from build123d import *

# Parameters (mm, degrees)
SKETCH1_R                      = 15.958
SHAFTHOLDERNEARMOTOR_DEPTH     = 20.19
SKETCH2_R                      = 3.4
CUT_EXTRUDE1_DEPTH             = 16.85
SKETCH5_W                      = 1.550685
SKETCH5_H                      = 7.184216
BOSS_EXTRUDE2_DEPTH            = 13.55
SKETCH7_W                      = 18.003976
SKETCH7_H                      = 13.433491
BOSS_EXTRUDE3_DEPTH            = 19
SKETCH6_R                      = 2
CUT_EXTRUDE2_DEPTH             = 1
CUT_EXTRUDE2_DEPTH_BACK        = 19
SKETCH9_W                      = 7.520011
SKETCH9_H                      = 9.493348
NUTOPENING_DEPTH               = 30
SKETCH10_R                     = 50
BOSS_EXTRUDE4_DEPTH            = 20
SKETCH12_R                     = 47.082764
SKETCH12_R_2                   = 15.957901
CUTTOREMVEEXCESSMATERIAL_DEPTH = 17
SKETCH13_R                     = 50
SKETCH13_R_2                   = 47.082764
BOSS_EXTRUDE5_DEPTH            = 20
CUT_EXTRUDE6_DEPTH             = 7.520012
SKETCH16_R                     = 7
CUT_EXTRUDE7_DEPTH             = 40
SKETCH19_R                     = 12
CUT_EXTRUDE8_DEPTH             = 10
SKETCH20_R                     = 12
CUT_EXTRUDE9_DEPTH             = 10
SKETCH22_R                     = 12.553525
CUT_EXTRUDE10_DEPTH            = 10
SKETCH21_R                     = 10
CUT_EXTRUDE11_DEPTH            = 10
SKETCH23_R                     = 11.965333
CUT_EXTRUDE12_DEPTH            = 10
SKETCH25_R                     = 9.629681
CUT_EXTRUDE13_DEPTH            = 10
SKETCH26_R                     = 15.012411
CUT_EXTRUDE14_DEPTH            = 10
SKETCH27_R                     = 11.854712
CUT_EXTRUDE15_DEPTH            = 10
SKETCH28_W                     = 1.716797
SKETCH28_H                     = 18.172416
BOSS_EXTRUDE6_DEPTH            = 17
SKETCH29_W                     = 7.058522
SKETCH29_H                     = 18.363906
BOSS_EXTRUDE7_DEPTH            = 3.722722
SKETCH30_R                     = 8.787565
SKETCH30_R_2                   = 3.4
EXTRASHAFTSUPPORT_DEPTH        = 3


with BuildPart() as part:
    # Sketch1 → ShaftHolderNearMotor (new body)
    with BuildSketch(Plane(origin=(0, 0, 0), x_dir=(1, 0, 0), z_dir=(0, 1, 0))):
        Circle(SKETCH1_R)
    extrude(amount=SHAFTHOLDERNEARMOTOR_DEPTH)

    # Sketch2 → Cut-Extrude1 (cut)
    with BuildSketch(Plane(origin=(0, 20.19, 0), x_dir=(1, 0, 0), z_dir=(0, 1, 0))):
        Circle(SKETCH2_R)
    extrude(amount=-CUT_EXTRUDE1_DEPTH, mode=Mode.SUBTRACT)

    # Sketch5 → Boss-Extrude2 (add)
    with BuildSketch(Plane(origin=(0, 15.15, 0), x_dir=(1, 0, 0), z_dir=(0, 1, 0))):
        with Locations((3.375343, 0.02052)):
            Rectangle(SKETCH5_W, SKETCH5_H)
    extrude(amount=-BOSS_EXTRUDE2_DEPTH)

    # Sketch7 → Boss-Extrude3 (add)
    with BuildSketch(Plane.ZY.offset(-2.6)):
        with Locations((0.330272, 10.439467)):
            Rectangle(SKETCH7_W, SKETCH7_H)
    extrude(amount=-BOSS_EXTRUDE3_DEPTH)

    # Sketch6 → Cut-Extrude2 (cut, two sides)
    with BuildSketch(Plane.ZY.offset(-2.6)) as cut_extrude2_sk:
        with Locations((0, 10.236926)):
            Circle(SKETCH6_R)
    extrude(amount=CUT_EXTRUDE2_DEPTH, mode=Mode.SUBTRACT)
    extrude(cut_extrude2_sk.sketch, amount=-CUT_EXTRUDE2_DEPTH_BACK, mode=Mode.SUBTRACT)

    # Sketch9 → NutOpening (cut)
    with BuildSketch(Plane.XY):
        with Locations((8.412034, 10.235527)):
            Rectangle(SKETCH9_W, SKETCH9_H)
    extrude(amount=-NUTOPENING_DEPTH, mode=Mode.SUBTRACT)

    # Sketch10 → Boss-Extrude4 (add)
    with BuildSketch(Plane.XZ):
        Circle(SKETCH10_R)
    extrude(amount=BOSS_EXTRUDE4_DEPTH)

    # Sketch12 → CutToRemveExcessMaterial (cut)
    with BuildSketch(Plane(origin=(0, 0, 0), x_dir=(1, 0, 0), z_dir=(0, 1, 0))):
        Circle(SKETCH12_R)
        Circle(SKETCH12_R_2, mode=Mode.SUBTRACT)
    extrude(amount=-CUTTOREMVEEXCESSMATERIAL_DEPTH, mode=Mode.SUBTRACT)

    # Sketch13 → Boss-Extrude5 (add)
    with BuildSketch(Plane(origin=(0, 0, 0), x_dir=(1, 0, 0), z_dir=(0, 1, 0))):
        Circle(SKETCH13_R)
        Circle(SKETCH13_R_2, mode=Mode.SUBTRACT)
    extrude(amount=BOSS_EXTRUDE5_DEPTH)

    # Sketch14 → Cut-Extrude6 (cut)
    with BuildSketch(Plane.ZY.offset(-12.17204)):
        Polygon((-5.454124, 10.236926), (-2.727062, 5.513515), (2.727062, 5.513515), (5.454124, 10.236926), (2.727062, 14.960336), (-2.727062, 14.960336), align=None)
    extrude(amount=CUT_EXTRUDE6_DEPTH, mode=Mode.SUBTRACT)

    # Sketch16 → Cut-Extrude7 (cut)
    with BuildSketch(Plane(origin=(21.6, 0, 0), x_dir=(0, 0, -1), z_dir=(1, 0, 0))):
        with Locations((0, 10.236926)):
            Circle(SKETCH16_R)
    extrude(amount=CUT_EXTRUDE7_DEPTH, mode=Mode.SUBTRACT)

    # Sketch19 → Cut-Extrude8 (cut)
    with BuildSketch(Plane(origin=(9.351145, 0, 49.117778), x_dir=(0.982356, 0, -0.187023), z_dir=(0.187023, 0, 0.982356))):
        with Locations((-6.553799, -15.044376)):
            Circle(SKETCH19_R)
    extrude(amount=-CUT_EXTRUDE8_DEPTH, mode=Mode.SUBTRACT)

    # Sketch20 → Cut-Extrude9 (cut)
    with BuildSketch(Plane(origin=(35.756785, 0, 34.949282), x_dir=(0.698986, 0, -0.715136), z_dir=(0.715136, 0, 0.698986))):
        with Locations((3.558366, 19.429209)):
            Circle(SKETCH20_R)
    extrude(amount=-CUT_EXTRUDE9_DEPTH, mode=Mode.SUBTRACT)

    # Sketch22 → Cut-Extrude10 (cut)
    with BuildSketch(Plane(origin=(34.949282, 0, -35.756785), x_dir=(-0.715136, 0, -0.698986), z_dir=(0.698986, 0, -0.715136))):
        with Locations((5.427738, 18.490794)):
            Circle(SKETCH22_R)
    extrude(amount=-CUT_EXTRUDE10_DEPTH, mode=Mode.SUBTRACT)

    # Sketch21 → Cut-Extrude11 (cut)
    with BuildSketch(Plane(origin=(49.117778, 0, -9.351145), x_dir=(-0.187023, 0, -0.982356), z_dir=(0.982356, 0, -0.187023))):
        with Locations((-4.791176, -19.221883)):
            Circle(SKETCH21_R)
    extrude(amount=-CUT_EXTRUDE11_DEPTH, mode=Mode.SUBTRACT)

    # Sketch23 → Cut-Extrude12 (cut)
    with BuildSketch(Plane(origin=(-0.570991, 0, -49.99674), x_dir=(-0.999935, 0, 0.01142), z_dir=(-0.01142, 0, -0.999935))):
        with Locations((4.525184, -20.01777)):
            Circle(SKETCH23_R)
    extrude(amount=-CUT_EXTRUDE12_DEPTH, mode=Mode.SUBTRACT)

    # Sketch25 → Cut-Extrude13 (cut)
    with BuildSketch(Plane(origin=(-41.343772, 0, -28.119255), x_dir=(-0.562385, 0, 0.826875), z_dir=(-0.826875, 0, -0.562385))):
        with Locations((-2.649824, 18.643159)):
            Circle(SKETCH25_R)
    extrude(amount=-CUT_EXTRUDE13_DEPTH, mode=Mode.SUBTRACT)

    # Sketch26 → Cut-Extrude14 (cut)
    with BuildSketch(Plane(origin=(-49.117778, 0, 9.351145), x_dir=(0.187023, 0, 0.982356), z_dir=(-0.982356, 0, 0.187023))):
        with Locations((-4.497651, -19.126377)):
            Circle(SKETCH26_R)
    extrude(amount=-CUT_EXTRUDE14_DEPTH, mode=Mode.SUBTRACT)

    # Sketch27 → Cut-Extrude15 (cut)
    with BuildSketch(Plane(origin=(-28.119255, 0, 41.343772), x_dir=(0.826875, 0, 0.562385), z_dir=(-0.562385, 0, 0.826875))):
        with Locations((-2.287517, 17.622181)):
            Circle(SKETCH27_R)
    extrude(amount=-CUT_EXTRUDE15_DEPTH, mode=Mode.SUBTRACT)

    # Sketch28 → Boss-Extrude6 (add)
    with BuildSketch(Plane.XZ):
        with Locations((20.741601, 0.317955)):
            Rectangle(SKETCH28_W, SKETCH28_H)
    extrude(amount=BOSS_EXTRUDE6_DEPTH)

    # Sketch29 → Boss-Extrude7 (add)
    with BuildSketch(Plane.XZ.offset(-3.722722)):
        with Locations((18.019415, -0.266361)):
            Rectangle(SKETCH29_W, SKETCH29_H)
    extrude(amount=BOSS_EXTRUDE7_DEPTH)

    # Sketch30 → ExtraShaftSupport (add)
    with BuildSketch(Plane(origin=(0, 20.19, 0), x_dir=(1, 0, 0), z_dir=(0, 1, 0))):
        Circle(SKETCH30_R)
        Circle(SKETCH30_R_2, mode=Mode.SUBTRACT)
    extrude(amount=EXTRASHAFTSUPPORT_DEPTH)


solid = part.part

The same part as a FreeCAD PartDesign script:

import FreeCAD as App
import Part
import Sketcher
from FreeCAD import Vector
Q = App.Units.Quantity

doc = App.newDocument("Part")
body = doc.addObject("PartDesign::Body", "Body")

sketch1 = body.newObject("Sketcher::SketchObject", "Sketch")
sketch1.AttachmentSupport = (doc.getObject("XZ_Plane"), [""])
sketch1.MapMode = "FlatFace"
sketch1.addGeometry(Part.Circle(Vector(0, 0, 0), Vector(0, 0, 1), 15.958), False)
sketch1.addConstraint([
    Sketcher.Constraint("Coincident", 0, 3, -1, 1),
    Sketcher.Constraint("Diameter", 0, Q("31.916 mm")),
])
pad1 = body.newObject("PartDesign::Pad", "Pad")
pad1.Profile = sketch1
pad1.Length = 20.19
pad1.Reversed = True

sketch2 = body.newObject("Sketcher::SketchObject", "Sketch001")
sketch2.AttachmentSupport = (doc.getObject("XZ_Plane"), [""])
sketch2.MapMode = "FlatFace"
sketch2.AttachmentOffset = App.Placement(Vector(0, 0, -20.19), App.Rotation())
sketch2.addGeometry(Part.Circle(Vector(0, 0, 0), Vector(0, 0, 1), 3.4), False)
sketch2.addConstraint([
    Sketcher.Constraint("Coincident", 0, 3, -1, 1),
    Sketcher.Constraint("Diameter", 0, Q("6.8 mm")),
])
pocket1 = body.newObject("PartDesign::Pocket", "Pocket")
pocket1.Profile = sketch2
pocket1.Length = 16.85
pocket1.Reversed = True

sketch3 = body.newObject("Sketcher::SketchObject", "Sketch002")
sketch3.AttachmentSupport = (doc.getObject("XZ_Plane"), [""])
sketch3.MapMode = "FlatFace"
sketch3.AttachmentOffset = App.Placement(Vector(0, 0, -15.15), App.Rotation())
sketch3.addGeometry([
    Part.LineSegment(Vector(2.600001, -3.612628, 0), Vector(2.600001, 3.571588, 0)),
    Part.LineSegment(Vector(2.600001, 3.571588, 0), Vector(4.150685, 3.571588, 0)),
    Part.LineSegment(Vector(4.150685, 3.571588, 0), Vector(4.150685, -3.612628, 0)),
    Part.LineSegment(Vector(4.150685, -3.612628, 0), Vector(2.600001, -3.612628, 0)),
], False)
sketch3.addConstraint([
    Sketcher.Constraint("Coincident", 0, 2, 1, 1),
    Sketcher.Constraint("Coincident", 1, 2, 2, 1),
    Sketcher.Constraint("Coincident", 2, 2, 3, 1),
    Sketcher.Constraint("Coincident", 3, 2, 0, 1),
    Sketcher.Constraint("Vertical", 0),
    Sketcher.Constraint("Horizontal", 1),
    Sketcher.Constraint("Vertical", 2),
    Sketcher.Constraint("Horizontal", 3),
    Sketcher.Constraint("DistanceX", -1, 1, 0, 2, Q("2.600001 mm")),
    Sketcher.Constraint("DistanceX", 1, 1, 1, 2, Q("1.550685 mm")),
    Sketcher.Constraint("DistanceY", 0, 1, 0, 2, Q("7.184216 mm")),
    Sketcher.Constraint("DistanceY", -1, 1, 0, 2, Q("3.571588 mm")),
])
pad2 = body.newObject("PartDesign::Pad", "Pad001")
pad2.Profile = sketch3
pad2.Length = 13.55

sketch4 = body.newObject("Sketcher::SketchObject", "Sketch003")
sketch4.AttachmentSupport = (doc.getObject("YZ_Plane"), [""])
sketch4.MapMode = "FlatFace"
sketch4.AttachmentOffset = App.Placement(Vector(0, 0, 2.6), App.Rotation())
sketch4.addGeometry([
    Part.LineSegment(Vector(17.156212, -8.671716, 0), Vector(3.722722, -8.671716, 0)),
    Part.LineSegment(Vector(3.722722, -8.671716, 0), Vector(3.722722, 9.33226, 0)),
    Part.LineSegment(Vector(3.722722, 9.33226, 0), Vector(17.156212, 9.33226, 0)),
    Part.LineSegment(Vector(17.156212, 9.33226, 0), Vector(17.156212, -8.671716, 0)),
], False)
sketch4.addConstraint([
    Sketcher.Constraint("Coincident", 0, 2, 1, 1),
    Sketcher.Constraint("Coincident", 1, 2, 2, 1),
    Sketcher.Constraint("Coincident", 2, 2, 3, 1),
    Sketcher.Constraint("Coincident", 3, 2, 0, 1),
    Sketcher.Constraint("Horizontal", 0),
    Sketcher.Constraint("Vertical", 1),
    Sketcher.Constraint("Horizontal", 2),
    Sketcher.Constraint("Vertical", 3),
    Sketcher.Constraint("DistanceX", 0, 2, 0, 1, Q("13.433491 mm")),
    Sketcher.Constraint("DistanceY", 1, 1, 1, 2, Q("18.003976 mm")),
    Sketcher.Constraint("DistanceX", -1, 1, 0, 2, Q("3.722722 mm")),
    Sketcher.Constraint("DistanceY", -1, 1, 1, 2, Q("9.33226 mm")),
])
pad3 = body.newObject("PartDesign::Pad", "Pad002")
pad3.Profile = sketch4
pad3.Length = 19

sketch5 = body.newObject("Sketcher::SketchObject", "Sketch004")
sketch5.AttachmentSupport = (doc.getObject("YZ_Plane"), [""])
sketch5.MapMode = "FlatFace"
sketch5.AttachmentOffset = App.Placement(Vector(0, 0, 2.6), App.Rotation())
sketch5.addGeometry(Part.Circle(Vector(10.236926, 0, 0), Vector(0, 0, 1), 2), False)
sketch5.addConstraint([
    Sketcher.Constraint("PointOnObject", 0, 3, -1),
    Sketcher.Constraint("Diameter", 0, Q("4 mm")),
    Sketcher.Constraint("DistanceX", -1, 1, 0, 3, Q("10.236926 mm")),
])
pocket2 = body.newObject("PartDesign::Pocket", "Pocket001")
pocket2.Profile = sketch5
pocket2.Type = "TwoLengths"
pocket2.Length = 1
pocket2.Length2 = 19

sketch6 = body.newObject("Sketcher::SketchObject", "Sketch005")
sketch6.AttachmentSupport = (doc.getObject("XY_Plane"), [""])
sketch6.MapMode = "FlatFace"
sketch6.addGeometry([
    Part.LineSegment(Vector(4.652029, 14.982201, 0), Vector(4.652029, 5.488853, 0)),
    Part.LineSegment(Vector(4.652029, 5.488853, 0), Vector(12.17204, 5.488853, 0)),
    Part.LineSegment(Vector(12.17204, 5.488853, 0), Vector(12.17204, 14.982201, 0)),
    Part.LineSegment(Vector(12.17204, 14.982201, 0), Vector(4.652029, 14.982201, 0)),
], False)
sketch6.addConstraint([
    Sketcher.Constraint("Coincident", 0, 2, 1, 1),
    Sketcher.Constraint("Coincident", 1, 2, 2, 1),
    Sketcher.Constraint("Coincident", 2, 2, 3, 1),
    Sketcher.Constraint("Coincident", 3, 2, 0, 1),
    Sketcher.Constraint("Vertical", 0),
    Sketcher.Constraint("Horizontal", 1),
    Sketcher.Constraint("Vertical", 2),
    Sketcher.Constraint("Horizontal", 3),
    Sketcher.Constraint("DistanceX", 1, 1, 1, 2, Q("7.520011 mm")),
    Sketcher.Constraint("DistanceY", 0, 2, 0, 1, Q("9.493348 mm")),
    Sketcher.Constraint("DistanceY", -1, 1, 2, 2, Q("14.982201 mm")),
    Sketcher.Constraint("DistanceX", -1, 1, 0, 2, Q("4.652029 mm")),
])
pocket3 = body.newObject("PartDesign::Pocket", "Pocket002")
pocket3.Profile = sketch6
pocket3.Length = 30

sketch7 = body.newObject("Sketcher::SketchObject", "Sketch006")
sketch7.AttachmentSupport = (doc.getObject("XZ_Plane"), [""])
sketch7.MapMode = "FlatFace"
sketch7.addGeometry(Part.Circle(Vector(0, 0, 0), Vector(0, 0, 1), 50), False)
sketch7.addConstraint([
    Sketcher.Constraint("Coincident", 0, 3, -1, 1),
    Sketcher.Constraint("Diameter", 0, Q("100 mm")),
])
pad4 = body.newObject("PartDesign::Pad", "Pad003")
pad4.Profile = sketch7
pad4.Length = 20

sketch8 = body.newObject("Sketcher::SketchObject", "Sketch007")
sketch8.AttachmentSupport = (doc.getObject("XZ_Plane"), [""])
sketch8.MapMode = "FlatFace"
sketch8.addGeometry([
    Part.Circle(Vector(0, 0, 0), Vector(0, 0, 1), 47.082764),
    Part.Circle(Vector(0, 0, 0), Vector(0, 0, 1), 15.957901),
], False)
sketch8.addConstraint([
    Sketcher.Constraint("Coincident", 0, 3, -1, 1),
    Sketcher.Constraint("Coincident", 1, 3, -1, 1),
    Sketcher.Constraint("Diameter", 1, Q("31.915802 mm")),
    Sketcher.Constraint("Diameter", 0, Q("94.165528 mm")),
])
pocket4 = body.newObject("PartDesign::Pocket", "Pocket003")
pocket4.Profile = sketch8
pocket4.Length = 17
pocket4.Reversed = True

sketch9 = body.newObject("Sketcher::SketchObject", "Sketch008")
sketch9.AttachmentSupport = (doc.getObject("XZ_Plane"), [""])
sketch9.MapMode = "FlatFace"
sketch9.addGeometry([
    Part.Circle(Vector(0, 0, 0), Vector(0, 0, 1), 50),
    Part.Circle(Vector(0, 0, 0), Vector(0, 0, 1), 47.082764),
], False)
sketch9.addConstraint([
    Sketcher.Constraint("Coincident", 0, 3, -1, 1),
    Sketcher.Constraint("Coincident", 1, 3, -1, 1),
    Sketcher.Constraint("Diameter", 0, Q("100 mm")),
    Sketcher.Constraint("Diameter", 1, Q("94.165528 mm")),
])
pad5 = body.newObject("PartDesign::Pad", "Pad004")
pad5.Profile = sketch9
pad5.Length = 20
pad5.Reversed = True

sketch10 = body.newObject("Sketcher::SketchObject", "Sketch009")
sketch10.AttachmentSupport = (doc.getObject("YZ_Plane"), [""])
sketch10.MapMode = "FlatFace"
sketch10.AttachmentOffset = App.Placement(Vector(0, 0, 12.17204), App.Rotation())
sketch10.addGeometry([
    Part.LineSegment(Vector(10.236926, -5.454124, 0), Vector(5.513515, -2.727062, 0)),
    Part.LineSegment(Vector(5.513515, -2.727062, 0), Vector(5.513515, 2.727062, 0)),
    Part.LineSegment(Vector(5.513515, 2.727062, 0), Vector(10.236926, 5.454124, 0)),
    Part.LineSegment(Vector(10.236926, 5.454124, 0), Vector(14.960336, 2.727062, 0)),
    Part.LineSegment(Vector(14.960336, 2.727062, 0), Vector(14.960336, -2.727062, 0)),
    Part.LineSegment(Vector(14.960336, -2.727062, 0), Vector(10.236926, -5.454124, 0)),
], False)
sketch10.addConstraint([
    Sketcher.Constraint("Coincident", 0, 2, 1, 1),
    Sketcher.Constraint("Coincident", 1, 2, 2, 1),
    Sketcher.Constraint("Coincident", 2, 2, 3, 1),
    Sketcher.Constraint("Coincident", 3, 2, 4, 1),
    Sketcher.Constraint("Coincident", 4, 2, 5, 1),
    Sketcher.Constraint("Coincident", 5, 2, 0, 1),
    Sketcher.Constraint("Vertical", 1),
    Sketcher.Constraint("Vertical", 4),
    Sketcher.Constraint("Symmetric", 2, 2, 5, 2, -1),
    Sketcher.Constraint("Parallel", 0, 3),
    Sketcher.Constraint("Parallel", 2, 5),
    Sketcher.Constraint("Horizontal", 1, 2, 3, 2),
    Sketcher.Constraint("Horizontal", 0, 2, 4, 2),
    Sketcher.Constraint("Angle", 0, Q("150.000006 deg")),
    Sketcher.Constraint("DistanceY", 1, 1, 1, 2, Q("5.454124 mm")),
    Sketcher.Constraint("DistanceX", 1, 2, 2, 2, Q("4.723411 mm")),
    Sketcher.Constraint("DistanceX", -1, 1, 0, 2, Q("5.513515 mm")),
])
pocket5 = body.newObject("PartDesign::Pocket", "Pocket004")
pocket5.Profile = sketch10
pocket5.Length = 7.520012

sketch11 = body.newObject("Sketcher::SketchObject", "Sketch010")
sketch11.AttachmentSupport = (doc.getObject("YZ_Plane"), [""])
sketch11.MapMode = "FlatFace"
sketch11.AttachmentOffset = App.Placement(Vector(0, 0, 21.6), App.Rotation())
sketch11.addGeometry(Part.Circle(Vector(10.236926, 0, 0), Vector(0, 0, 1), 7), False)
sketch11.addConstraint([
    Sketcher.Constraint("PointOnObject", 0, 3, -1),
    Sketcher.Constraint("Diameter", 0, Q("14 mm")),
    Sketcher.Constraint("DistanceX", -1, 1, 0, 3, Q("10.236926 mm")),
])
pocket6 = body.newObject("PartDesign::Pocket", "Pocket005")
pocket6.Profile = sketch11
pocket6.Length = 40
pocket6.Reversed = True

sketch12 = body.newObject("Sketcher::SketchObject", "Sketch011")
sketch12.Placement = App.Placement(Vector(9.351145, 0, 49.117778), App.Rotation(Vector(0.982355551, 0, -0.187022915), Vector(0, 0.999999999, 0), Vector(0.187022915, 0, 0.982355551), "ZXY"))
sketch12.addGeometry(Part.Circle(Vector(-6.553799, -15.044376, 0), Vector(0, 0, 1), 12), False)
sketch12.addConstraint([
    Sketcher.Constraint("Diameter", 0, Q("24 mm")),
    Sketcher.Constraint("DistanceX", 0, 3, -1, 1, Q("6.553799 mm")),
    Sketcher.Constraint("DistanceY", 0, 3, -1, 1, Q("15.044376 mm")),
])
pocket7 = body.newObject("PartDesign::Pocket", "Pocket006")
pocket7.Profile = sketch12
pocket7.Length = 10

sketch13 = body.newObject("Sketcher::SketchObject", "Sketch012")
sketch13.Placement = App.Placement(Vector(35.756785, 0, 34.949282), App.Rotation(Vector(0.698985676, 0, -0.715135669), Vector(0, 1, 0), Vector(0.715135669, 0, 0.698985676), "ZXY"))
sketch13.addGeometry(Part.Circle(Vector(3.558366, 19.429209, 0), Vector(0, 0, 1), 12), False)
sketch13.addConstraint([
    Sketcher.Constraint("Diameter", 0, Q("24 mm")),
    Sketcher.Constraint("DistanceY", -1, 1, 0, 3, Q("19.429209 mm")),
    Sketcher.Constraint("DistanceX", -1, 1, 0, 3, Q("3.558366 mm")),
])
pocket8 = body.newObject("PartDesign::Pocket", "Pocket007")
pocket8.Profile = sketch13
pocket8.Length = 10

sketch14 = body.newObject("Sketcher::SketchObject", "Sketch013")
sketch14.Placement = App.Placement(Vector(34.949282, 0, -35.756785), App.Rotation(Vector(-0.715135669, 0, -0.698985676), Vector(0, 1, 0), Vector(0.698985676, 0, -0.715135669), "ZXY"))
sketch14.addGeometry(Part.Circle(Vector(5.427738, 18.490794, 0), Vector(0, 0, 1), 12.553525), False)
sketch14.addConstraint([
    Sketcher.Constraint("Diameter", 0, Q("25.10705 mm")),
    Sketcher.Constraint("DistanceX", -1, 1, 0, 3, Q("5.427738 mm")),
    Sketcher.Constraint("DistanceY", -1, 1, 0, 3, Q("18.490794 mm")),
])
pocket9 = body.newObject("PartDesign::Pocket", "Pocket008")
pocket9.Profile = sketch14
pocket9.Length = 10

sketch15 = body.newObject("Sketcher::SketchObject", "Sketch014")
sketch15.Placement = App.Placement(Vector(49.117778, 0, -9.351145), App.Rotation(Vector(-0.187022915, 0, -0.982355551), Vector(0, 0.999999999, 0), Vector(0.982355551, 0, -0.187022915), "ZXY"))
sketch15.addGeometry(Part.Circle(Vector(-4.791176, -19.221883, 0), Vector(0, 0, 1), 10), False)
sketch15.addConstraint([
    Sketcher.Constraint("Diameter", 0, Q("20 mm")),
    Sketcher.Constraint("DistanceX", 0, 3, -1, 1, Q("4.791176 mm")),
    Sketcher.Constraint("DistanceY", 0, 3, -1, 1, Q("19.221883 mm")),
])
pocket10 = body.newObject("PartDesign::Pocket", "Pocket009")
pocket10.Profile = sketch15
pocket10.Length = 10

sketch16 = body.newObject("Sketcher::SketchObject", "Sketch015")
sketch16.Placement = App.Placement(Vector(-0.570991, 0, -49.99674), App.Rotation(Vector(-0.99993479, 0, 0.011419998), Vector(0, 1.000000001, 0), Vector(-0.011419998, 0, -0.99993479), "ZXY"))
sketch16.addGeometry(Part.Circle(Vector(4.525184, -20.01777, 0), Vector(0, 0, 1), 11.965333), False)
sketch16.addConstraint([
    Sketcher.Constraint("Diameter", 0, Q("23.930666 mm")),
    Sketcher.Constraint("DistanceY", 0, 3, -1, 1, Q("20.01777 mm")),
    Sketcher.Constraint("DistanceX", -1, 1, 0, 3, Q("4.525184 mm")),
])
pocket11 = body.newObject("PartDesign::Pocket", "Pocket010")
pocket11.Profile = sketch16
pocket11.Length = 10

sketch17 = body.newObject("Sketcher::SketchObject", "Sketch016")
sketch17.Placement = App.Placement(Vector(-41.343772, 0, -28.119255), App.Rotation(Vector(-0.562385238, 0, 0.82687535), Vector(0, 1, 0), Vector(-0.82687535, 0, -0.562385238), "ZXY"))
sketch17.addGeometry(Part.Circle(Vector(-2.649824, 18.643159, 0), Vector(0, 0, 1), 9.629681), False)
sketch17.addConstraint([
    Sketcher.Constraint("Diameter", 0, Q("19.259362 mm")),
    Sketcher.Constraint("DistanceY", -1, 1, 0, 3, Q("18.643159 mm")),
    Sketcher.Constraint("DistanceX", 0, 3, -1, 1, Q("2.649824 mm")),
])
pocket12 = body.newObject("PartDesign::Pocket", "Pocket011")
pocket12.Profile = sketch17
pocket12.Length = 10

sketch18 = body.newObject("Sketcher::SketchObject", "Sketch017")
sketch18.Placement = App.Placement(Vector(-49.117778, 0, 9.351145), App.Rotation(Vector(0.187022915, 0, 0.982355551), Vector(0, 0.999999999, 0), Vector(-0.982355551, 0, 0.187022915), "ZXY"))
sketch18.addGeometry(Part.Circle(Vector(-4.497651, -19.126377, 0), Vector(0, 0, 1), 15.012411), False)
sketch18.addConstraint([
    Sketcher.Constraint("Diameter", 0, Q("30.024822 mm")),
    Sketcher.Constraint("DistanceX", 0, 3, -1, 1, Q("4.497651 mm")),
    Sketcher.Constraint("DistanceY", 0, 3, -1, 1, Q("19.126377 mm")),
])
pocket13 = body.newObject("PartDesign::Pocket", "Pocket012")
pocket13.Profile = sketch18
pocket13.Length = 10

sketch19 = body.newObject("Sketcher::SketchObject", "Sketch018")
sketch19.Placement = App.Placement(Vector(-28.119255, 0, 41.343772), App.Rotation(Vector(0.82687535, 0, 0.562385238), Vector(0, 1, 0), Vector(-0.562385238, 0, 0.82687535), "ZXY"))
sketch19.addGeometry(Part.Circle(Vector(-2.287517, 17.622181, 0), Vector(0, 0, 1), 11.854712), False)
sketch19.addConstraint([
    Sketcher.Constraint("Diameter", 0, Q("23.709424 mm")),
    Sketcher.Constraint("DistanceY", -1, 1, 0, 3, Q("17.622181 mm")),
    Sketcher.Constraint("DistanceX", 0, 3, -1, 1, Q("2.287517 mm")),
])
pocket14 = body.newObject("PartDesign::Pocket", "Pocket013")
pocket14.Profile = sketch19
pocket14.Length = 10

sketch20 = body.newObject("Sketcher::SketchObject", "Sketch019")
sketch20.AttachmentSupport = (doc.getObject("XZ_Plane"), [""])
sketch20.MapMode = "FlatFace"
sketch20.addGeometry([
    Part.LineSegment(Vector(19.883202, 9.404163, 0), Vector(19.883202, -8.768253, 0)),
    Part.LineSegment(Vector(19.883202, -8.768253, 0), Vector(21.599999, -8.768253, 0)),
    Part.LineSegment(Vector(21.599999, -8.768253, 0), Vector(21.599999, 9.404163, 0)),
    Part.LineSegment(Vector(21.599999, 9.404163, 0), Vector(19.883202, 9.404163, 0)),
], False)
sketch20.addConstraint([
    Sketcher.Constraint("Coincident", 0, 2, 1, 1),
    Sketcher.Constraint("Coincident", 1, 2, 2, 1),
    Sketcher.Constraint("Coincident", 2, 2, 3, 1),
    Sketcher.Constraint("Coincident", 3, 2, 0, 1),
    Sketcher.Constraint("Vertical", 0),
    Sketcher.Constraint("Horizontal", 1),
    Sketcher.Constraint("Vertical", 2),
    Sketcher.Constraint("Horizontal", 3),
    Sketcher.Constraint("DistanceX", -1, 1, 1, 2, Q("21.599999 mm")),
    Sketcher.Constraint("DistanceX", 1, 1, 1, 2, Q("1.716797 mm")),
    Sketcher.Constraint("DistanceY", 0, 2, 0, 1, Q("18.172416 mm")),
    Sketcher.Constraint("DistanceY", 0, 2, -1, 1, Q("8.768253 mm")),
])
pad6 = body.newObject("PartDesign::Pad", "Pad005")
pad6.Profile = sketch20
pad6.Length = 17

sketch21 = body.newObject("Sketcher::SketchObject", "Sketch020")
sketch21.AttachmentSupport = (doc.getObject("XZ_Plane"), [""])
sketch21.MapMode = "FlatFace"
sketch21.AttachmentOffset = App.Placement(Vector(0, 0, -3.722722), App.Rotation())
sketch21.addGeometry([
    Part.LineSegment(Vector(14.490154, 8.915592, 0), Vector(14.490154, -9.448314, 0)),
    Part.LineSegment(Vector(14.490154, -9.448314, 0), Vector(21.548676, -9.448314, 0)),
    Part.LineSegment(Vector(21.548676, -9.448314, 0), Vector(21.548676, 8.915592, 0)),
    Part.LineSegment(Vector(21.548676, 8.915592, 0), Vector(14.490154, 8.915592, 0)),
], False)
sketch21.addConstraint([
    Sketcher.Constraint("Coincident", 0, 2, 1, 1),
    Sketcher.Constraint("Coincident", 1, 2, 2, 1),
    Sketcher.Constraint("Coincident", 2, 2, 3, 1),
    Sketcher.Constraint("Coincident", 3, 2, 0, 1),
    Sketcher.Constraint("Vertical", 0),
    Sketcher.Constraint("Horizontal", 1),
    Sketcher.Constraint("Vertical", 2),
    Sketcher.Constraint("Horizontal", 3),
    Sketcher.Constraint("DistanceX", 1, 1, 1, 2, Q("7.058522 mm")),
    Sketcher.Constraint("DistanceY", 0, 2, 0, 1, Q("18.363906 mm")),
    Sketcher.Constraint("DistanceX", -1, 1, 0, 2, Q("14.490154 mm")),
    Sketcher.Constraint("DistanceY", 0, 2, -1, 1, Q("9.448314 mm")),
])
pad7 = body.newObject("PartDesign::Pad", "Pad006")
pad7.Profile = sketch21
pad7.Length = 3.722722

sketch22 = body.newObject("Sketcher::SketchObject", "Sketch021")
sketch22.AttachmentSupport = (doc.getObject("XZ_Plane"), [""])
sketch22.MapMode = "FlatFace"
sketch22.AttachmentOffset = App.Placement(Vector(0, 0, -20.19), App.Rotation())
sketch22.addGeometry([
    Part.Circle(Vector(0, 0, 0), Vector(0, 0, 1), 8.787565),
    Part.Circle(Vector(0, 0, 0), Vector(0, 0, 1), 3.4),
], False)
sketch22.addConstraint([
    Sketcher.Constraint("Coincident", 0, 3, -1, 1),
    Sketcher.Constraint("Coincident", 1, 3, -1, 1),
    Sketcher.Constraint("Diameter", 1, Q("6.8 mm")),
    Sketcher.Constraint("Diameter", 0, Q("17.57513 mm")),
])
pad8 = body.newObject("PartDesign::Pad", "Pad007")
pad8.Profile = sketch22
pad8.Length = 3
pad8.Reversed = True

doc.recompute()
